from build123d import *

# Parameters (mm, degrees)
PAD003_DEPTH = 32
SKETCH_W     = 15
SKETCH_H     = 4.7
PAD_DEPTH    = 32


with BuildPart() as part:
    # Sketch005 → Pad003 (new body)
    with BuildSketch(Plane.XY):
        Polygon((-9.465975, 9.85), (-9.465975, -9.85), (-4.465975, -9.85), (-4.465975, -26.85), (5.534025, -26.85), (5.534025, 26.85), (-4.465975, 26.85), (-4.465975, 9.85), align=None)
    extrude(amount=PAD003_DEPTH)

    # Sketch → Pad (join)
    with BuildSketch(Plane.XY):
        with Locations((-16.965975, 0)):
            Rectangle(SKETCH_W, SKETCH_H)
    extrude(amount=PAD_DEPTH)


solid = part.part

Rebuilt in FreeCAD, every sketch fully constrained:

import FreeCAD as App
import Part
import Sketcher

V = App.Vector
Q = App.Units.Quantity

doc = App.newDocument("Part")
body = doc.addObject("PartDesign::Body", "Body")

sketch1 = body.newObject("Sketcher::SketchObject", "Sketch")
sketch1.AttachmentSupport = (doc.getObject("XY_Plane"), [""])
sketch1.MapMode = "FlatFace"
sketch1.addGeometry([
    Part.LineSegment(V(-9.465975, 9.85, 0), V(-9.465975, -9.85, 0)),
    Part.LineSegment(V(-9.465975, -9.85, 0), V(-4.465975, -9.85, 0)),
    Part.LineSegment(V(-4.465975, -9.85, 0), V(-4.465975, -26.85, 0)),
    Part.LineSegment(V(-4.465975, -26.85, 0), V(5.534025, -26.85, 0)),
    Part.LineSegment(V(5.534025, -26.85, 0), V(5.534025, 26.85, 0)),
    Part.LineSegment(V(5.534025, 26.85, 0), V(-4.465975, 26.85, 0)),
    Part.LineSegment(V(-4.465975, 26.85, 0), V(-4.465975, 9.85, 0)),
    Part.LineSegment(V(-4.465975, 9.85, 0), V(-9.465975, 9.85, 0)),
], False)
sketch1.addConstraint([
    Sketcher.Constraint("Coincident", 0, 2, 1, 1),
    Sketcher.Constraint("Coincident", 1, 2, 2, 1),
    Sketcher.Constraint("Coincident", 2, 2, 3, 1),
    Sketcher.Constraint("Coincident", 3, 2, 4, 1),
    Sketcher.Constraint("Coincident", 4, 2, 5, 1),
    Sketcher.Constraint("Coincident", 5, 2, 6, 1),
    Sketcher.Constraint("Coincident", 6, 2, 7, 1),
    Sketcher.Constraint("Coincident", 7, 2, 0, 1),
    Sketcher.Constraint("Vertical", 0),
    Sketcher.Constraint("Horizontal", 1),
    Sketcher.Constraint("Vertical", 2),
    Sketcher.Constraint("Horizontal", 3),
    Sketcher.Constraint("Vertical", 4),
    Sketcher.Constraint("Horizontal", 5),
    Sketcher.Constraint("Vertical", 6),
    Sketcher.Constraint("Horizontal", 7),
    Sketcher.Constraint("Symmetric", 2, 2, 5, 2, -1),
    Sketcher.Constraint("Equal", 2, 6),
    Sketcher.Constraint("DistanceX", 1, 1, 1, 2, Q("5 mm")),
    Sketcher.Constraint("DistanceX", 3, 1, 3, 2, Q("10 mm")),
    Sketcher.Constraint("DistanceY", 2, 2, 2, 1, Q("17 mm")),
    Sketcher.Constraint("DistanceY", 0, 2, 0, 1, Q("19.7 mm")),
    Sketcher.Constraint("DistanceX", 0, 2, -1, 1, Q("9.465975 mm")),
])
pad1 = body.newObject("PartDesign::Pad", "Pad")
pad1.Profile = sketch1
pad1.Length = 32

sketch2 = body.newObject("Sketcher::SketchObject", "Sketch001")
sketch2.AttachmentSupport = (doc.getObject("XY_Plane"), [""])
sketch2.MapMode = "FlatFace"
sketch2.addGeometry([
    Part.LineSegment(V(-24.465975, 2.35, 0), V(-24.465975, -2.35, 0)),
    Part.LineSegment(V(-24.465975, -2.35, 0), V(-9.465975, -2.35, 0)),
    Part.LineSegment(V(-9.465975, -2.35, 0), V(-9.465975, 2.35, 0)),
    Part.LineSegment(V(-9.465975, 2.35, 0), V(-24.465975, 2.35, 0)),
], False)
sketch2.addConstraint([
    Sketcher.Constraint("Coincident", 0, 2, 1, 1),
    Sketcher.Constraint("Coincident", 1, 2, 2, 1),
    Sketcher.Constraint("Coincident", 2, 2, 3, 1),
    Sketcher.Constraint("Coincident", 3, 2, 0, 1),
    Sketcher.Constraint("Vertical", 0),
    Sketcher.Constraint("Horizontal", 1),
    Sketcher.Constraint("Vertical", 2),
    Sketcher.Constraint("Horizontal", 3),
    Sketcher.Constraint("DistanceX", 1, 1, 1, 2, Q("15 mm")),
    Sketcher.Constraint("DistanceY", 0, 2, 0, 1, Q("4.7 mm")),
    Sketcher.Constraint("DistanceY", 0, 2, -1, 1, Q("2.35 mm")),
    Sketcher.Constraint("DistanceX", 0, 2, -1, 1, Q("24.465975 mm")),
])
pad2 = body.newObject("PartDesign::Pad", "Pad001")
pad2.Profile = sketch2
pad2.Length = 32

doc.recompute()
